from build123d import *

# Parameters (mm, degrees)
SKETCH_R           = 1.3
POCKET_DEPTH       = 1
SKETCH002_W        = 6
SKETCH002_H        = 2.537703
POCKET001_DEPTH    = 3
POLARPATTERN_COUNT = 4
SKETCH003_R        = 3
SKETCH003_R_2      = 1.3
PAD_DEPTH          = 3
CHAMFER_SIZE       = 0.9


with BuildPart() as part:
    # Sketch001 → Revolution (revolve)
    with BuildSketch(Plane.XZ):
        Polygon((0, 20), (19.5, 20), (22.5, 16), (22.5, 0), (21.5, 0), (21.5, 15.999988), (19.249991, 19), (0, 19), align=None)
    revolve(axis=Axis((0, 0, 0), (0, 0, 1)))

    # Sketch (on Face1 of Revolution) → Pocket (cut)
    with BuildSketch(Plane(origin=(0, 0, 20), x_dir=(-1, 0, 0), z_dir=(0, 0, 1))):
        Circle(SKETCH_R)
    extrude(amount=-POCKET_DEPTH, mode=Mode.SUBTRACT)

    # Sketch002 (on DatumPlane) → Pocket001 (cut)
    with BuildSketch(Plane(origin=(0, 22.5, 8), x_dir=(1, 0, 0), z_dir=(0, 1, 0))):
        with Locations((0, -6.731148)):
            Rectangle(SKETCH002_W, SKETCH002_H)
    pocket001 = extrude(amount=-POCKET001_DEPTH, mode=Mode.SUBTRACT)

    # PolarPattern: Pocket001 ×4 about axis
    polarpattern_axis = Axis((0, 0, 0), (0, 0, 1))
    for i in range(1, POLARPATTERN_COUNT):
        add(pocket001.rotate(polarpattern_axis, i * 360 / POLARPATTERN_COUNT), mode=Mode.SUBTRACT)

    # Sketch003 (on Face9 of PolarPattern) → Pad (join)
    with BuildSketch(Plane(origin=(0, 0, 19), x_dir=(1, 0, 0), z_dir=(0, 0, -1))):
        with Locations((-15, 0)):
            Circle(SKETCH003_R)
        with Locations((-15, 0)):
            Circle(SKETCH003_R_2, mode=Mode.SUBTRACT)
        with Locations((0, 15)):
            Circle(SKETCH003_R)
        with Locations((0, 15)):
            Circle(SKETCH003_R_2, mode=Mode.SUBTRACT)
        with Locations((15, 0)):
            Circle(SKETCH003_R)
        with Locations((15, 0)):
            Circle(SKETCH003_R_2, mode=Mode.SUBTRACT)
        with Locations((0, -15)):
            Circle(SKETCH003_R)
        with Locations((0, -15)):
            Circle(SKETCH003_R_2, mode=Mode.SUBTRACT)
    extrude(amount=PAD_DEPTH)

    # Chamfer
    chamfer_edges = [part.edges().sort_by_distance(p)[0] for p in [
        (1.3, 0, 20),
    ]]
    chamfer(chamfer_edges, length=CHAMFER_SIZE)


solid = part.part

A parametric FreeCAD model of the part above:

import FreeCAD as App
import Part
import Sketcher

V = App.Vector
Q = App.Units.Quantity


def edges_at(feature, points):
    """Names of the edges that pass closest to the given points."""
    edges = feature.Shape.Edges
    near = lambda p: min(range(len(edges)), key=lambda i: edges[i].distToShape(Part.Vertex(*p))[0])
    return sorted({f"Edge{near(p) + 1}" for p in points})


def add_polygon(sketch, points):
    """Adds a closed chain of lines whose ends are joined by coincident constraints."""
    first, n = sketch.GeometryCount, len(points)
    for a, b in zip(points, points[1:] + points[:1]):
        sketch.addGeometry(Part.LineSegment(App.Vector(*a, 0), App.Vector(*b, 0)), False)
    for i in range(n):
        sketch.addConstraint(Sketcher.Constraint("Coincident", first + i, 2, first + (i + 1) % n, 1))

doc = App.newDocument("Part")
body = doc.addObject("PartDesign::Body", "Body")

sketch1 = body.newObject("Sketcher::SketchObject", "Sketch")
sketch1.AttachmentSupport = (doc.getObject("XZ_Plane"), [""])
sketch1.MapMode = "FlatFace"
add_polygon(sketch1, [(19.5, 20), (0, 20), (0, 19), (19.2, 19), (21.5, 16), (21.5, 0), (22.5, 0), (22.5, 16)])
sketch1.addConstraint(Sketcher.Constraint("Horizontal", 0))
sketch1.addConstraint(Sketcher.Constraint("Vertical", 1))
sketch1.addConstraint(Sketcher.Constraint("Horizontal", 2))
sketch1.addConstraint(Sketcher.Constraint("Vertical", 4))
sketch1.addConstraint(Sketcher.Constraint("Horizontal", 5))
sketch1.addConstraint(Sketcher.Constraint("Vertical", 6))
sketch1.addConstraint(Sketcher.Constraint("PointOnObject", 0, 2, -2))
sketch1.addConstraint(Sketcher.Constraint("PointOnObject", 4, 2, -1))
sketch1.addConstraint(Sketcher.Constraint("Parallel", 3, 7))
sketch1.addConstraint(Sketcher.Constraint("Equal", 5, 1))
sketch1.addConstraint(Sketcher.Constraint("DistanceX", 5, 1, 5, 2, Q("1 mm")))
sketch1.addConstraint(Sketcher.Constraint("DistanceY", 6, 1, 6, 2, Q("16 mm")))
sketch1.addConstraint(Sketcher.Constraint("Distance", 7, Q("5 mm")))
sketch1.addConstraint(Sketcher.Constraint("DistanceX", 0, 2, 0, 1, Q("19.5 mm")))
sketch1.addConstraint(Sketcher.Constraint("DistanceY", -1, 1, 0, 2, Q("20 mm")))
sketch1.addConstraint(Sketcher.Constraint("DistanceX", 2, 1, 2, 2, Q("19.249991 mm")))
revolution = body.newObject("PartDesign::Revolution", "Revolution")
revolution.Profile = sketch1
revolution.ReferenceAxis = (sketch1, ["V_Axis"])
revolution.Angle = 360

sketch2 = body.newObject("Sketcher::SketchObject", "Sketch001")
sketch2.AttachmentSupport = (doc.getObject("XY_Plane"), [""])
sketch2.MapMode = "FlatFace"
sketch2.AttachmentOffset = App.Placement(V(0, 0, 20), App.Rotation())
sketch2.addGeometry(Part.Circle(V(0, 0, 0), V(0, 0, 1), 1.3), False)
sketch2.addConstraint(Sketcher.Constraint("Coincident", 0, 3, -1, 1))
sketch2.addConstraint(Sketcher.Constraint("Diameter", 0, Q("2.6 mm")))
pocket1 = body.newObject("PartDesign::Pocket", "Pocket")
pocket1.Profile = sketch2
pocket1.Length = 1

sketch3 = body.newObject("Sketcher::SketchObject", "Sketch002")
sketch3.AttachmentSupport = (doc.getObject("XZ_Plane"), [""])
sketch3.MapMode = "FlatFace"
sketch3.AttachmentOffset = App.Placement(V(0, 0, -22.5), App.Rotation())
add_polygon(sketch3, [(-3, 13.5), (-3, 16), (3, 16), (3, 13.5)])
sketch3.addConstraint(Sketcher.Constraint("Vertical", 0))
sketch3.addConstraint(Sketcher.Constraint("Horizontal", 1))
sketch3.addConstraint(Sketcher.Constraint("Vertical", 2))
sketch3.addConstraint(Sketcher.Constraint("Horizontal", 3))
sketch3.addConstraint(Sketcher.Constraint("DistanceX", 1, 1, 1, 2, Q("6 mm")))
sketch3.addConstraint(Sketcher.Constraint("DistanceX", 0, 2, -1, 1, Q("3 mm")))
sketch3.addConstraint(Sketcher.Constraint("DistanceY", -1, 1, 0, 2, Q("15.999999 mm")))
sketch3.addConstraint(Sketcher.Constraint("DistanceY", 0, 1, 0, 2, Q("2.537703 mm")))
pocket2 = body.newObject("PartDesign::Pocket", "Pocket001")
pocket2.Profile = sketch3
pocket2.Length = 3
pocket2.Reversed = True
doc.recompute()

polarpattern = body.newObject("PartDesign::PolarPattern", "PolarPattern")
polarpattern.Originals = [pocket2]
polarpattern.Axis = (doc.getObject("Z_Axis"), [""])
polarpattern.Angle = 360
polarpattern.Occurrences = 4
body.Tip = polarpattern

sketch4 = body.newObject("Sketcher::SketchObject", "Sketch003")
sketch4.AttachmentSupport = (doc.getObject("XY_Plane"), [""])
sketch4.MapMode = "FlatFace"
sketch4.AttachmentOffset = App.Placement(V(0, 0, 19), App.Rotation())
sketch4.addGeometry(Part.Circle(V(-15, 0, 0), V(0, 0, 1), 3), False)
sketch4.addGeometry(Part.Circle(V(-15, 0, 0), V(0, 0, 1), 1.3), False)
sketch4.addGeometry(Part.Circle(V(0, -15, 0), V(0, 0, 1), 3), False)
sketch4.addGeometry(Part.Circle(V(0, -15, 0), V(0, 0, 1), 1.3), False)
sketch4.addGeometry(Part.Circle(V(15, 0, 0), V(0, 0, 1), 3), False)
sketch4.addGeometry(Part.Circle(V(15, 0, 0), V(0, 0, 1), 1.3), False)
sketch4.addGeometry(Part.Circle(V(0, 15, 0), V(0, 0, 1), 3), False)
sketch4.addGeometry(Part.Circle(V(0, 15, 0), V(0, 0, 1), 1.3), False)
sketch4.addConstraint(Sketcher.Constraint("Coincident", 1, 3, 0, 3))
sketch4.addConstraint(Sketcher.Constraint("Coincident", 3, 3, 2, 3))
sketch4.addConstraint(Sketcher.Constraint("Coincident", 5, 3, 4, 3))
sketch4.addConstraint(Sketcher.Constraint("Coincident", 7, 3, 6, 3))
sketch4.addConstraint(Sketcher.Constraint("Equal", 0, 2))
sketch4.addConstraint(Sketcher.Constraint("Equal", 1, 3))
sketch4.addConstraint(Sketcher.Constraint("Equal", 2, 4))
sketch4.addConstraint(Sketcher.Constraint("Equal", 3, 5))
sketch4.addConstraint(Sketcher.Constraint("Equal", 4, 6))
sketch4.addConstraint(Sketcher.Constraint("Equal", 5, 7))
sketch4.addConstraint(Sketcher.Constraint("Symmetric", 0, 3, 4, 3, -1, 1))
sketch4.addConstraint(Sketcher.Constraint("Symmetric", 2, 3, 6, 3, -1, 1))
sketch4.addConstraint(Sketcher.Constraint("PointOnObject", 0, 3, -1))
sketch4.addConstraint(Sketcher.Constraint("PointOnObject", 2, 3, -2))
sketch4.addConstraint(Sketcher.Constraint("Diameter", 0, Q("6 mm")))
sketch4.addConstraint(Sketcher.Constraint("Diameter", 1, Q("2.6 mm")))
sketch4.addConstraint(Sketcher.Constraint("DistanceX", 0, 3, -1, 1, Q("15 mm")))
sketch4.addConstraint(Sketcher.Constraint("DistanceY", 2, 3, -1, 1, Q("15 mm")))
pad1 = body.newObject("PartDesign::Pad", "Pad")
pad1.Profile = sketch4
pad1.Length = 3
pad1.Reversed = True
doc.recompute()

chamfer = body.newObject("PartDesign::Chamfer", "Chamfer")
chamfer.Base = (pad1, edges_at(pad1, [(1.3, 0, 20)]))
chamfer.Size = 0.9

doc.recompute()
